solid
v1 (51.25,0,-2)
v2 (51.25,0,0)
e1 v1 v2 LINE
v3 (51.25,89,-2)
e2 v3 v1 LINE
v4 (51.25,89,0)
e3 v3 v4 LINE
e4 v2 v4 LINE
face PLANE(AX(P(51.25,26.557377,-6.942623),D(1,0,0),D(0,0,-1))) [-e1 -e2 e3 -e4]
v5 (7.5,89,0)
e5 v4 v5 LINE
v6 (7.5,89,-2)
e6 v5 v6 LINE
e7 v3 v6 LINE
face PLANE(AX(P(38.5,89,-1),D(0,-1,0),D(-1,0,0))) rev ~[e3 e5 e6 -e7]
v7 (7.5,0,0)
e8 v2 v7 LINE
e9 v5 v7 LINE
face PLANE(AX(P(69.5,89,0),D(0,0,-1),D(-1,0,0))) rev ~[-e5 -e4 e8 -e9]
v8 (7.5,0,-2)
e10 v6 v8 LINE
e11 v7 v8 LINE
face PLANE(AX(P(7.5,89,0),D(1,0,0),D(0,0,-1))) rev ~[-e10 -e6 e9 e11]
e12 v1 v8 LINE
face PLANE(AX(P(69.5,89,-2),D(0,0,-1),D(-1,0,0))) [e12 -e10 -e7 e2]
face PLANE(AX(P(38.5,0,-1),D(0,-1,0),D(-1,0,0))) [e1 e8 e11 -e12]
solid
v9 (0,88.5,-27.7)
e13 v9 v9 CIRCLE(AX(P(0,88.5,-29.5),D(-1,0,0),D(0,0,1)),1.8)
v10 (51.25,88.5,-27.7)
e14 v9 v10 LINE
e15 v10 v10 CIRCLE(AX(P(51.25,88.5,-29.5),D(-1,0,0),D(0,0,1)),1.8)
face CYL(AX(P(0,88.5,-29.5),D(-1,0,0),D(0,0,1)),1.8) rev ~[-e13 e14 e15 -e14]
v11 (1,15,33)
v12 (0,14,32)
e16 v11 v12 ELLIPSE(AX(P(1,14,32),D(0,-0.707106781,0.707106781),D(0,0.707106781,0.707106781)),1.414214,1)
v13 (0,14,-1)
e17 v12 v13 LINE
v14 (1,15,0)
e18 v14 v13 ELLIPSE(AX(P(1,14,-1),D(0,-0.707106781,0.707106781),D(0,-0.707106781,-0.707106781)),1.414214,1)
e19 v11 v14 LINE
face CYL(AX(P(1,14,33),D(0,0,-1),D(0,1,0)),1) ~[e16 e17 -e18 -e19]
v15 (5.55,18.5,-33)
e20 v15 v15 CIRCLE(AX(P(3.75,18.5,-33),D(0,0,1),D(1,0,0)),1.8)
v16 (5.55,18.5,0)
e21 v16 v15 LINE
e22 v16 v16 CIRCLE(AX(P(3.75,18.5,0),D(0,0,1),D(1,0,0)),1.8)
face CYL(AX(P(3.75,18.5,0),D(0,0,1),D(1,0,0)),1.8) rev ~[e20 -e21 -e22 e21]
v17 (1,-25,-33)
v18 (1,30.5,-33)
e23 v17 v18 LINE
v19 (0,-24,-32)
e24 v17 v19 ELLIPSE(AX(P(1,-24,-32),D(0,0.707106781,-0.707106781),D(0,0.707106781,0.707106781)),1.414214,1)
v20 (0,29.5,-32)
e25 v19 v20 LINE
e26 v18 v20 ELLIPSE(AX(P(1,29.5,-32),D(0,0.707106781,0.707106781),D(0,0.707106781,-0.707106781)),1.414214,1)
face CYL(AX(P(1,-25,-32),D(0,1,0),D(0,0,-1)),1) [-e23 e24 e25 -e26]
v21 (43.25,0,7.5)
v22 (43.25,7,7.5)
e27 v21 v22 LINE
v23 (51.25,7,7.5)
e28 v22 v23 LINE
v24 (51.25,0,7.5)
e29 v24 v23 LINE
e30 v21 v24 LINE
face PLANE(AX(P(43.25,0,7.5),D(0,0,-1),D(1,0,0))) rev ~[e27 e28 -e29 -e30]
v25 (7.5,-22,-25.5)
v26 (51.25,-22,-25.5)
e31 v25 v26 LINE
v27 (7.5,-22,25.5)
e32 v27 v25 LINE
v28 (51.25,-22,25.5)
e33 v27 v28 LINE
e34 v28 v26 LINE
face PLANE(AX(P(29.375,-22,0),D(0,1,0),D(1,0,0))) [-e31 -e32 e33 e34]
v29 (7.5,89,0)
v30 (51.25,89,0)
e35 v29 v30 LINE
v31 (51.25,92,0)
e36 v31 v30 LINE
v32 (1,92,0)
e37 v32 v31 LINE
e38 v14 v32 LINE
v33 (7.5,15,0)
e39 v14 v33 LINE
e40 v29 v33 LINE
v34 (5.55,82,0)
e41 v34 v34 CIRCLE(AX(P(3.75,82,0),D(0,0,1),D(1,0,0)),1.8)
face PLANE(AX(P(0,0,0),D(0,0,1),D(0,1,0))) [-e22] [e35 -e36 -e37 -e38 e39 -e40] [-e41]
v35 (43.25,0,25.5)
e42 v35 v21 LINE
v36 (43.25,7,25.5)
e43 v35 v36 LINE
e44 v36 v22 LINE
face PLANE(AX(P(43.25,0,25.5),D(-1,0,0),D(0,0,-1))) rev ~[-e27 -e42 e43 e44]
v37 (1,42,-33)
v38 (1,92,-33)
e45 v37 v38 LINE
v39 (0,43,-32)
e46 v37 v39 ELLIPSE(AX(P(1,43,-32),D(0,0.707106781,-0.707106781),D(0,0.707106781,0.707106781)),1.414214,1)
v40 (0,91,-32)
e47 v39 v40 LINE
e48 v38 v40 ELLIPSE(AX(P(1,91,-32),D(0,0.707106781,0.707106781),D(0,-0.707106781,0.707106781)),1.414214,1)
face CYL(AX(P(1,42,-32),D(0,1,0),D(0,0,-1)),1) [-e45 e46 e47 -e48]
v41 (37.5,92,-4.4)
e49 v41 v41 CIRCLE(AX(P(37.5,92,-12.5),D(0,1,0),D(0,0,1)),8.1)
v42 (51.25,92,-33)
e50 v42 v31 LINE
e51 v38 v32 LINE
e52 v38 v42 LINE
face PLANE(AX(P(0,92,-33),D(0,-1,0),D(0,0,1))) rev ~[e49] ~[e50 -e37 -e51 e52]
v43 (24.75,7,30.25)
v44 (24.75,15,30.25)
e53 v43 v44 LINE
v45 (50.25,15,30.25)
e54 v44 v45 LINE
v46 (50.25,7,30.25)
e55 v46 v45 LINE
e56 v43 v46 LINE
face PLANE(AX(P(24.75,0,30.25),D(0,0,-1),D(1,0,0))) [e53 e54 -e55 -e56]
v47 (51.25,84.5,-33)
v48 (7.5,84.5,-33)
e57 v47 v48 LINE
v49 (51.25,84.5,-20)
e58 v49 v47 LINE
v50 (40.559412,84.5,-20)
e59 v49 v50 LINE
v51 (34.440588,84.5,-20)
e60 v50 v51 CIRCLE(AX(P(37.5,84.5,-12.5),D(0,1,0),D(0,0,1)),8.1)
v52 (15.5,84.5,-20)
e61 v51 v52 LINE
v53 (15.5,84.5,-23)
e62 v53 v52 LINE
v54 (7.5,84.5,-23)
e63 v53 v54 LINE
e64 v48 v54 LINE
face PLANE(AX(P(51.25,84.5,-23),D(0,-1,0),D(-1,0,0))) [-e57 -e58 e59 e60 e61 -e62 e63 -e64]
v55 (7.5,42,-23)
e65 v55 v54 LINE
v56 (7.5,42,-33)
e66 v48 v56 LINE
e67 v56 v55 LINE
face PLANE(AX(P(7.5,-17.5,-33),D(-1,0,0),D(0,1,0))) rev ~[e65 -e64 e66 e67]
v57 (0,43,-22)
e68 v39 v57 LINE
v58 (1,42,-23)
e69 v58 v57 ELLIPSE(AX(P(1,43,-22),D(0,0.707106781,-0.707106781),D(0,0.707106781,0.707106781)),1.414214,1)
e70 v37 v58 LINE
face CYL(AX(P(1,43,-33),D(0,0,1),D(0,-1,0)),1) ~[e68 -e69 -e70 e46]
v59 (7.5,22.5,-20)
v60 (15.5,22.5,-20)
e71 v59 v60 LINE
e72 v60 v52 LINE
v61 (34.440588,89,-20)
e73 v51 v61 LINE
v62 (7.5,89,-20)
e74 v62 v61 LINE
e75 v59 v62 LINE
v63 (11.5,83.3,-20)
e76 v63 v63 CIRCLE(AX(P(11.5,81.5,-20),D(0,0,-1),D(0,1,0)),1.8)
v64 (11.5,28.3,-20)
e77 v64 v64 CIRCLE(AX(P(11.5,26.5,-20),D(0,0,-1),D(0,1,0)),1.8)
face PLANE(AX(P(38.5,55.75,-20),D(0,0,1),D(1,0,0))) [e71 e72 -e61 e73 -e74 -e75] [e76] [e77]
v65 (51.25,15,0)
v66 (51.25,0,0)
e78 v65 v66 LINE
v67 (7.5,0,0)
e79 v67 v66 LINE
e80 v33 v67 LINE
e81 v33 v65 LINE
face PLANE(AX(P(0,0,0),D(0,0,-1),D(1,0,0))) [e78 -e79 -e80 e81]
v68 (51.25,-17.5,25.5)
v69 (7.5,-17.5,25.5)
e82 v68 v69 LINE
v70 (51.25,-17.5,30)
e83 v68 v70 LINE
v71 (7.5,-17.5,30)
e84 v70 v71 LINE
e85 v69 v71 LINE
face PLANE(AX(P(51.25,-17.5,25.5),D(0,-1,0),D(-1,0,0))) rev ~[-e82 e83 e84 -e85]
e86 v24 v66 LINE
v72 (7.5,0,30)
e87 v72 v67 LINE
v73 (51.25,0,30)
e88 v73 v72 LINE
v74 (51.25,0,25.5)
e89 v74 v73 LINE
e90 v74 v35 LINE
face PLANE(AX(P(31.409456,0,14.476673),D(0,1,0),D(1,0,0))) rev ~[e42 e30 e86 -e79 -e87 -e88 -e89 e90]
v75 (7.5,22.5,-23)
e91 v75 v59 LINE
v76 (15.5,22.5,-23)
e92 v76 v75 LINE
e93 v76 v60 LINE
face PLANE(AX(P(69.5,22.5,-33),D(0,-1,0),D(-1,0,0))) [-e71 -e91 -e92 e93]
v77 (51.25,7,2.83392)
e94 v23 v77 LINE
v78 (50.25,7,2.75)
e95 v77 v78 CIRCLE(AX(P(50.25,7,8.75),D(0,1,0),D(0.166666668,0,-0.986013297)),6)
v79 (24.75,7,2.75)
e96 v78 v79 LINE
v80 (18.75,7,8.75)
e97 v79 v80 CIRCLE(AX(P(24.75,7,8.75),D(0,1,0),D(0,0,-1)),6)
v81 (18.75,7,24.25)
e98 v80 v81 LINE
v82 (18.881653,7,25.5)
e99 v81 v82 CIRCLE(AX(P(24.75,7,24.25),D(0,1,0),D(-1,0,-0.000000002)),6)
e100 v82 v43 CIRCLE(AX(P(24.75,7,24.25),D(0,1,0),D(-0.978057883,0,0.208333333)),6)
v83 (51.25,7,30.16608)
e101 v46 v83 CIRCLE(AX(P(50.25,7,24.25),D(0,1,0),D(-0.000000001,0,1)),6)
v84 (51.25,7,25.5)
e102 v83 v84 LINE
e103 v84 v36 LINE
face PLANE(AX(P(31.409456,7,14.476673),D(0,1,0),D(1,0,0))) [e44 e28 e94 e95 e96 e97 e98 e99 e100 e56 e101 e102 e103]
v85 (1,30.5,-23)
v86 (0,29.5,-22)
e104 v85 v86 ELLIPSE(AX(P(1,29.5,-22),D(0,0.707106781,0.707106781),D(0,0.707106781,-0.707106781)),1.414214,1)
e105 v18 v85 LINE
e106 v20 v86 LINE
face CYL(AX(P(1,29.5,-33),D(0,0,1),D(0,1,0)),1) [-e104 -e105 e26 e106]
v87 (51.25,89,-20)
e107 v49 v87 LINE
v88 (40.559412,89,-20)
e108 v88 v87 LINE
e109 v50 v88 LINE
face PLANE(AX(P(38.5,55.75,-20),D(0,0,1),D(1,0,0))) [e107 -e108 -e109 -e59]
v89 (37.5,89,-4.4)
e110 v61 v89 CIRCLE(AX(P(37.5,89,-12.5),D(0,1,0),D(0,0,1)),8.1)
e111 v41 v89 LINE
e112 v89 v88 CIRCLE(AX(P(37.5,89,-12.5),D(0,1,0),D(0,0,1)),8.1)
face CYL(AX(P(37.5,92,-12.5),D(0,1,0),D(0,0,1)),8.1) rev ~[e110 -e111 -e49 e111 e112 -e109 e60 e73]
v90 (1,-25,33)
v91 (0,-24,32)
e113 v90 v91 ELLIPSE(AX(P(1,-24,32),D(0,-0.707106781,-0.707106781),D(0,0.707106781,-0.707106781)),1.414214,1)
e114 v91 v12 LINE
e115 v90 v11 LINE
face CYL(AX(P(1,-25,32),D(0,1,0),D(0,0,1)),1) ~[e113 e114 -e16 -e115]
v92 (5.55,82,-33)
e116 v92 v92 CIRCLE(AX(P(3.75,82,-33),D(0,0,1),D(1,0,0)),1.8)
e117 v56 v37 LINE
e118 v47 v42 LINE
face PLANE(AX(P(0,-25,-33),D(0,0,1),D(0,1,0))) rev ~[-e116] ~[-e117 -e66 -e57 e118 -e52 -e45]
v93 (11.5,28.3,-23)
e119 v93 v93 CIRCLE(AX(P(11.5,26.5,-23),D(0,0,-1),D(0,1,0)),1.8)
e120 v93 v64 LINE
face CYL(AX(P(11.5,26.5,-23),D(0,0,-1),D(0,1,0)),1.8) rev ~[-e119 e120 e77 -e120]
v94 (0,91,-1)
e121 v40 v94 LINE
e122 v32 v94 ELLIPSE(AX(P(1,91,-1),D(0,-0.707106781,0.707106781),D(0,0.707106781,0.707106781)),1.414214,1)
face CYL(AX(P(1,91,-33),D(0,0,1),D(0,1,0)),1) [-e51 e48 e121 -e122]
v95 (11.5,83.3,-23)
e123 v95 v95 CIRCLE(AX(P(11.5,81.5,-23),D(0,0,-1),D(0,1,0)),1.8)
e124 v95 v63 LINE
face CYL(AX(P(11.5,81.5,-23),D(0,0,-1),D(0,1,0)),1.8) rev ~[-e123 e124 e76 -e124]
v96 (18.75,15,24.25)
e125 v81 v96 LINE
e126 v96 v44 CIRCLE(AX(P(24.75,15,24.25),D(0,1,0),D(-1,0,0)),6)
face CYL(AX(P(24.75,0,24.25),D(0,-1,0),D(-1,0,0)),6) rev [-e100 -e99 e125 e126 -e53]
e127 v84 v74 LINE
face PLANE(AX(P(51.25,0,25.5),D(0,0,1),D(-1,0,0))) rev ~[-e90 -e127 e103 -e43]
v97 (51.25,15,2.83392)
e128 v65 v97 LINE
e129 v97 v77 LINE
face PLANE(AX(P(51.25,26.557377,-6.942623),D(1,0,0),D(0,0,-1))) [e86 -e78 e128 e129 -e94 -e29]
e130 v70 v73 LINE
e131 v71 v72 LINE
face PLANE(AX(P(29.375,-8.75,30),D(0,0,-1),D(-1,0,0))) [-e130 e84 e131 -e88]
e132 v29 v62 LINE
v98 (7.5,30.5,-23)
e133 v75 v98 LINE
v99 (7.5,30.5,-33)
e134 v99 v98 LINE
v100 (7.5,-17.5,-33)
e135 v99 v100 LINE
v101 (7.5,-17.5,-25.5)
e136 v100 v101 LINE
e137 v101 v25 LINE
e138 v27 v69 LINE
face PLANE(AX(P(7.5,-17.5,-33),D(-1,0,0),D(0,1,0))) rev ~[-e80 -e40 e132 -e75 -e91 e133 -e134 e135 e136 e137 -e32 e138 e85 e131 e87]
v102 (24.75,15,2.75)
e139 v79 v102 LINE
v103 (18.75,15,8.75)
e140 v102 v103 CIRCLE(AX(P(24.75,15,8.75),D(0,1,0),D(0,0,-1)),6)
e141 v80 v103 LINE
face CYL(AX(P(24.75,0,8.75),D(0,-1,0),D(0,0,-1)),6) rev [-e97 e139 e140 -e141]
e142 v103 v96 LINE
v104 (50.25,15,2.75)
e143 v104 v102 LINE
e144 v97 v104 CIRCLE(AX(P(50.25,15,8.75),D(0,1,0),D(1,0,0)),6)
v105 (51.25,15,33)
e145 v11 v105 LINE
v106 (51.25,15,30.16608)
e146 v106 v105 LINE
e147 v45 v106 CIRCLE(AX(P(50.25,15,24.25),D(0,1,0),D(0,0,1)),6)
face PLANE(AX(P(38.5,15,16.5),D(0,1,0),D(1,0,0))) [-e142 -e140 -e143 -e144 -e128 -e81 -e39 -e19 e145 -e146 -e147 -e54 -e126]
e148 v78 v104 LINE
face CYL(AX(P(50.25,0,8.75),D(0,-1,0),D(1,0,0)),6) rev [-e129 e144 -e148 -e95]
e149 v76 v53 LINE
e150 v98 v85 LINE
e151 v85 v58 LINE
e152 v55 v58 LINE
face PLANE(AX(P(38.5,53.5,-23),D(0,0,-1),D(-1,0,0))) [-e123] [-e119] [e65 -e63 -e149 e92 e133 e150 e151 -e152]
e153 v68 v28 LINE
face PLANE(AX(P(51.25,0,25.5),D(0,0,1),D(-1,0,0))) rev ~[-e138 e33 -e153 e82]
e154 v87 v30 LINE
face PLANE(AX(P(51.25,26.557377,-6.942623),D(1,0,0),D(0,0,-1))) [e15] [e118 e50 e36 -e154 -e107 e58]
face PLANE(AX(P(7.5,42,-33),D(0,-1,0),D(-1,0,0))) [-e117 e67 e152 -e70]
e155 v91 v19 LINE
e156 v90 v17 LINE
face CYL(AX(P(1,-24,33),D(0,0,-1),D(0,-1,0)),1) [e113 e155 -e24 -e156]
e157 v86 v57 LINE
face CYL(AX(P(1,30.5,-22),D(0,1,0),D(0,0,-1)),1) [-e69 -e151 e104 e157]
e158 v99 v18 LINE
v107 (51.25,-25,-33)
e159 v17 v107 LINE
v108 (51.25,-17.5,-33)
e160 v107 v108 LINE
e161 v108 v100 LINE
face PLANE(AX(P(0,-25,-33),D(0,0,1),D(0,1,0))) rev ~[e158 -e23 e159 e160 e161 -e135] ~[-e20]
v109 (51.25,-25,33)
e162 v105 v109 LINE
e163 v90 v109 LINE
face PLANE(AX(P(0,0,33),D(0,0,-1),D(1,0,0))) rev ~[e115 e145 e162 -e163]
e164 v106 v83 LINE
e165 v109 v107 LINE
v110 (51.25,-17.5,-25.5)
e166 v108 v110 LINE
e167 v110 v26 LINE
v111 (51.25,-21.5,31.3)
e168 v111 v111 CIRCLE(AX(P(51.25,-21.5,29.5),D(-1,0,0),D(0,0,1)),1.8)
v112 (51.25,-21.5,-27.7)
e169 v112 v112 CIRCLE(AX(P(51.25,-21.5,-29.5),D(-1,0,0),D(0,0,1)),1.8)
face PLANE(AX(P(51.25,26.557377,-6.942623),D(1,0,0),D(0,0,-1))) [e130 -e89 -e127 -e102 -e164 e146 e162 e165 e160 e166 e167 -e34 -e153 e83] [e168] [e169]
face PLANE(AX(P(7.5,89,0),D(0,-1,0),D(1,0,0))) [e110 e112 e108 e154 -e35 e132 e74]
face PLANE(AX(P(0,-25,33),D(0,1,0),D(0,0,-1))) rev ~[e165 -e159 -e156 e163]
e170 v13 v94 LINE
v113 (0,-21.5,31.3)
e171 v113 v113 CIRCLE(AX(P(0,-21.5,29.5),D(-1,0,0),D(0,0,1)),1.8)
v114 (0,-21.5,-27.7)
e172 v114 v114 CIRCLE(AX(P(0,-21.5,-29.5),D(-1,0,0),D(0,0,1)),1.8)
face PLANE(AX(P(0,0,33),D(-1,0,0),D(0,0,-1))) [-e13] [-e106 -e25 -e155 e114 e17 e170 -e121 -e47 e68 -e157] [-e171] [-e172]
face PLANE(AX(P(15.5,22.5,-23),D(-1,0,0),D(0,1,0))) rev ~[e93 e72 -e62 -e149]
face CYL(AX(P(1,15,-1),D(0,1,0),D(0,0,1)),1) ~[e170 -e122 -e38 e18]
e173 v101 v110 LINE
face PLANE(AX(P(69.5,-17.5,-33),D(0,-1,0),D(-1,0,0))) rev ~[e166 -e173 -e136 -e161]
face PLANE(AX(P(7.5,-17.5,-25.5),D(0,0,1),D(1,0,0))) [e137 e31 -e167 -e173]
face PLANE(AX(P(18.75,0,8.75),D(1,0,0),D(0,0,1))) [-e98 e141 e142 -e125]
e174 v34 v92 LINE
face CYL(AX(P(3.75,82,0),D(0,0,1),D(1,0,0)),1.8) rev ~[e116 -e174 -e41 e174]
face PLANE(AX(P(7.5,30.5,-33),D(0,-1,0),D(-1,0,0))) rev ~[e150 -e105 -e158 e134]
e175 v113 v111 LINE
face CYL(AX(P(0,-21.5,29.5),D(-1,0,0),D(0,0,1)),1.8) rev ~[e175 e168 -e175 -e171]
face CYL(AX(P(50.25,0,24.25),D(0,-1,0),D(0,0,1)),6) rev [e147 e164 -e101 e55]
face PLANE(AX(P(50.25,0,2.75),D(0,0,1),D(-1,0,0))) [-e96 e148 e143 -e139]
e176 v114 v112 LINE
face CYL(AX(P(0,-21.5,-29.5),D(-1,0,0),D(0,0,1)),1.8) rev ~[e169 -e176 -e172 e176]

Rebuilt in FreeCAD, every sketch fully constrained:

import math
import FreeCAD as App
import Part
import Sketcher
from FreeCAD import Vector


def edges_at(feature, points):
    """Names of the edges that pass closest to the given points."""
    edges = feature.Shape.Edges
    near = lambda p: min(range(len(edges)), key=lambda i: edges[i].distToShape(Part.Vertex(*p))[0])
    return sorted({f"Edge{near(p) + 1}" for p in points})


def add_polygon(sketch, points):
    """Adds a closed chain of lines whose ends are joined by coincident constraints."""
    first, n = sketch.GeometryCount, len(points)
    for a, b in zip(points, points[1:] + points[:1]):
        sketch.addGeometry(Part.LineSegment(App.Vector(*a, 0), App.Vector(*b, 0)), False)
    for i in range(n):
        sketch.addConstraint(Sketcher.Constraint("Coincident", first + i, 2, first + (i + 1) % n, 1))

doc = App.newDocument("Part")
params = doc.addObject("Spreadsheet::Sheet", "Params")
for row, (alias, value) in enumerate([
    ("sketch1_width", "25 mm"),
    ("sketch1_width2", "117 mm"),
    ("sketch1_height", "66 mm"),
    ("pad1_length", "77 mm"),
    ("sketch2_width", "62 mm"),
    ("pocket1_length", "10 mm"),
    ("sketch3_diameter", "16.2 mm"),
    ("pocket2_length", "10 mm"),
    ("sketch4_width", "62 mm"),
    ("sketch4_height", "40 mm"),
    ("pocket3_length", "58.5 mm"),
    ("sketch5_radius", "6 mm"),
    ("sketch5_width", "77 mm"),
    ("sketch5_height", "33 mm"),
    ("sketch5_width2", "25.5 mm"),
    ("sketch5_height2", "15.5 mm"),
    ("pad2_length", "15 mm"),
    ("sketch6_radius", "6 mm"),
    ("sketch6_width", "8 mm"),
    ("sketch6_height", "18 mm"),
    ("sketch6_width2", "25.5 mm"),
    ("sketch6_height2", "15.5 mm"),
    ("pad3_length", "7 mm"),
    ("sketch7_width", "62 mm"),
    ("sketch7_height", "66.5 mm"),
    ("pocket4_length", "20 mm"),
    ("sketch8_diameter", "3.6 mm"),
    ("sketch9_diameter", "3.6 mm"),
    ("sketch10_diameter", "3.6 mm"),
    ("pocket7_length", "3 mm"),
    ("sketch11_width", "7.5 mm"),
    ("sketch11_height", "11.5 mm"),
    ("pocket8_length", "10 mm"),
    ("sketch12_width", "62 mm"),
    ("sketch12_height", "2 mm"),
    ("pad4_length", "89 mm"),
    ("sketch13_width", "40 mm"),
    ("sketch13_width2", "117 mm"),
    ("sketch13_height", "33 mm"),
    ("pad5_length", "25.75 mm"),
    ("sketch14_height", "51 mm"),
    ("sketch14_width", "43.75 mm"),
    ("pocket9_length", "4.5 mm"),
    ("sketch15_height", "17.5 mm"),
    ("sketch15_width", "43.75 mm"),
    ("pocket10_length", "4.5 mm"),
    ("sketch16_height", "62 mm"),
    ("sketch16_width", "35.75 mm"),
    ("pocket11_length", "3 mm"),
    ("fillet_radius", "1 mm"),
], start=1):
    params.set(f"A{row}", alias)
    params.set(f"B{row}", "=" + value)
    params.setAlias(f"B{row}", alias)

body = doc.addObject("PartDesign::Body", "Body")

# Sketch on YZ plane
sketch1 = body.newObject("Sketcher::SketchObject", "Sketch")
sketch1.AttachmentSupport = (doc.getObject("YZ_Plane"), [""])
sketch1.MapMode = "FlatFace"
add_polygon(sketch1, [(0, 33), (-25, 33), (-25, -33), (92, -33), (92, 0), (0, 0)])  # lines 0-5
sketch1.addConstraint([
    Sketcher.Constraint("Horizontal", 0),
    Sketcher.Constraint("Vertical", 1),
    Sketcher.Constraint("Horizontal", 2),
    Sketcher.Constraint("Vertical", 3),
    Sketcher.Constraint("Horizontal", 4),
    Sketcher.Constraint("Vertical", 5),
    Sketcher.Constraint("Coincident", 4, 2, -1, 1),
    Sketcher.Constraint("Equal", 3, 5),
    Sketcher.Constraint("DistanceX", 0, 2, 0, 1, 25.0),
    Sketcher.Constraint("DistanceX", 2, 1, 2, 2, 117.0),
    Sketcher.Constraint("DistanceY", 1, 2, 1, 1, 66.0),
])
sketch1.setExpression("Constraints[14]", "Params.sketch1_width")
sketch1.setExpression("Constraints[15]", "Params.sketch1_width2")
sketch1.setExpression("Constraints[16]", "Params.sketch1_height")
pad1 = body.newObject("PartDesign::Pad", "Pad")
pad1.Profile = sketch1
pad1.setExpression("Length", "Params.pad1_length")

# Sketch on XY plane
sketch2 = body.newObject("Sketcher::SketchObject", "Sketch001")
sketch2.AttachmentSupport = (doc.getObject("XY_Plane"), [""])
sketch2.MapMode = "FlatFace"
sketch2.AttachmentOffset = App.Placement(Vector(0, 0, -33), App.Rotation())
add_polygon(sketch2, [(69.5, 84.5), (69.5, 22.5), (7.5, 22.5), (7.5, 84.5)])  # lines 0-3
sketch2.addConstraint([
    Sketcher.Constraint("Vertical", 0),
    Sketcher.Constraint("Horizontal", 1),
    Sketcher.Constraint("Vertical", 2),
    Sketcher.Constraint("Horizontal", 3),
    Sketcher.Constraint("Equal", 3, 0),
    Sketcher.Constraint("DistanceX", 1, 2, 1, 1, 62.0),
    Sketcher.Constraint("DistanceX", -1, 1, 0, 2, 69.5),
    Sketcher.Constraint("DistanceY", -1, 1, 0, 2, 22.5),
])
sketch2.setExpression("Constraints[9]", "Params.sketch2_width")
pocket1 = body.newObject("PartDesign::Pocket", "Pocket")
pocket1.Profile = sketch2
pocket1.setExpression("Length", "Params.pocket1_length")
pocket1.Reversed = True

# Sketch on XZ plane
sketch3 = body.newObject("Sketcher::SketchObject", "Sketch002")
sketch3.AttachmentSupport = (doc.getObject("XZ_Plane"), [""])
sketch3.MapMode = "FlatFace"
sketch3.AttachmentOffset = App.Placement(Vector(0, 0, -92), App.Rotation())
sketch3.addGeometry(Part.Circle(Vector(37.5, -12.5, 0), Vector(0, 0, 1), 8.1), False)
sketch3.addConstraint([
    Sketcher.Constraint("Diameter", 0, 16.2),
    Sketcher.Constraint("DistanceX", -1, 1, 0, 3, 37.5),
    Sketcher.Constraint("DistanceY", 0, 3, -1, 1, 12.5),
])
sketch3.setExpression("Constraints[0]", "Params.sketch3_diameter")
pocket2 = body.newObject("PartDesign::Pocket", "Pocket001")
pocket2.Profile = sketch3
pocket2.setExpression("Length", "Params.pocket2_length")
pocket2.Reversed = True

# Sketch on XY plane
sketch4 = body.newObject("Sketcher::SketchObject", "Sketch003")
sketch4.AttachmentSupport = (doc.getObject("XY_Plane"), [""])
sketch4.MapMode = "FlatFace"
sketch4.AttachmentOffset = App.Placement(Vector(0, 0, -33), App.Rotation())
add_polygon(sketch4, [(69.5, 22.5), (69.5, -17.5), (7.5, -17.5), (7.5, 22.5)])  # lines 0-3
sketch4.addConstraint([
    Sketcher.Constraint("Vertical", 0),
    Sketcher.Constraint("Horizontal", 1),
    Sketcher.Constraint("Vertical", 2),
    Sketcher.Constraint("Horizontal", 3),
    Sketcher.Constraint("DistanceX", 1, 2, 1, 1, 62.0),
    Sketcher.Constraint("DistanceY", 0, 2, 0, 1, 40.0),
    Sketcher.Constraint("DistanceX", -1, 1, 0, 2, 69.5),
    Sketcher.Constraint("DistanceY", 0, 2, -1, 1, 17.5),
])
sketch4.setExpression("Constraints[8]", "Params.sketch4_width")
sketch4.setExpression("Constraints[9]", "Params.sketch4_height")
pocket3 = body.newObject("PartDesign::Pocket", "Pocket002")
pocket3.Profile = sketch4
pocket3.setExpression("Length", "Params.pocket3_length")
pocket3.Reversed = True

# Sketch on XZ plane
sketch5 = body.newObject("Sketcher::SketchObject", "Sketch004")
sketch5.AttachmentSupport = (doc.getObject("XZ_Plane"), [""])
sketch5.MapMode = "FlatFace"
add_polygon(sketch5, [(0, 0), (0, 33), (77, 33), (77, 0)])  # lines 0-3
sketch5.addGeometry(Part.LineSegment(Vector(24.75, 2.75, 0), Vector(50.25, 2.75, 0)), False)  # 4
sketch5.addGeometry(Part.ArcOfCircle(Part.Circle(Vector(50.25, 8.75, 0), Vector(0, 0, 1), 6), math.radians(-90), math.radians(0)), False)  # 5
sketch5.addGeometry(Part.LineSegment(Vector(56.25, 8.75, 0), Vector(56.25, 24.25, 0)), False)  # 6
sketch5.addGeometry(Part.ArcOfCircle(Part.Circle(Vector(50.25, 24.25, 0), Vector(0, 0, 1), 6), math.radians(0), math.radians(90)), False)  # 7
sketch5.addGeometry(Part.LineSegment(Vector(50.25, 30.25, 0), Vector(24.75, 30.25, 0)), False)  # 8
sketch5.addGeometry(Part.ArcOfCircle(Part.Circle(Vector(24.75, 24.25, 0), Vector(0, 0, 1), 6), math.radians(90), math.radians(180)), False)  # 9
sketch5.addGeometry(Part.LineSegment(Vector(18.75, 24.25, 0), Vector(18.75, 8.75, 0)), False)  # 10
sketch5.addGeometry(Part.ArcOfCircle(Part.Circle(Vector(24.75, 8.75, 0), Vector(0, 0, 1), 6), math.radians(180), math.radians(270)), False)  # 11
sketch5.addConstraint([
    Sketcher.Constraint("Tangent", 4, 2, 5, 1),
    Sketcher.Constraint("Tangent", 5, 2, 6, 1),
    Sketcher.Constraint("Tangent", 6, 2, 7, 1),
    Sketcher.Constraint("Tangent", 7, 2, 8, 1),
    Sketcher.Constraint("Tangent", 8, 2, 9, 1),
    Sketcher.Constraint("Tangent", 9, 2, 10, 1),
    Sketcher.Constraint("Tangent", 10, 2, 11, 1),
    Sketcher.Constraint("Tangent", 11, 2, 4, 1),
    Sketcher.Constraint("Vertical", 0),
    Sketcher.Constraint("Horizontal", 1),
    Sketcher.Constraint("Vertical", 2),
    Sketcher.Constraint("Horizontal", 3),
    Sketcher.Constraint("Horizontal", 4),
    Sketcher.Constraint("Vertical", 6),
    Sketcher.Constraint("Horizontal", 8),
    Sketcher.Constraint("Vertical", 10),
    Sketcher.Constraint("Coincident", 3, 2, -1, 1),
    Sketcher.Constraint("Equal", 5, 7),
    Sketcher.Constraint("Equal", 7, 9),
    Sketcher.Constraint("Equal", 9, 11),
    Sketcher.Constraint("Radius", 5, 6.0),
    Sketcher.Constraint("DistanceX", 1, 1, 1, 2, 77.0),
    Sketcher.Constraint("DistanceY", 0, 1, 0, 2, 33.0),
    Sketcher.Constraint("DistanceX", 4, 1, 4, 2, 25.5),
    Sketcher.Constraint("DistanceY", 6, 1, 6, 2, 15.5),
    Sketcher.Constraint("DistanceX", -1, 1, 5, 3, 50.25),
    Sketcher.Constraint("DistanceY", -1, 1, 5, 3, 8.75),
])
sketch5.setExpression("Constraints[24]", "Params.sketch5_radius")
sketch5.setExpression("Constraints[25]", "Params.sketch5_width")
sketch5.setExpression("Constraints[26]", "Params.sketch5_height")
sketch5.setExpression("Constraints[27]", "Params.sketch5_width2")
sketch5.setExpression("Constraints[28]", "Params.sketch5_height2")
pad2 = body.newObject("PartDesign::Pad", "Pad001")
pad2.Profile = sketch5
pad2.setExpression("Length", "Params.pad2_length")
pad2.Reversed = True

# Sketch on XZ plane
sketch6 = body.newObject("Sketcher::SketchObject", "Sketch005")
sketch6.AttachmentSupport = (doc.getObject("XZ_Plane"), [""])
sketch6.MapMode = "FlatFace"
sketch6.addGeometry(Part.ArcOfCircle(Part.Circle(Vector(24.75, 8.75, 0), Vector(0, 0, 1), 6), math.radians(180), math.radians(270)), False)  # 0
sketch6.addGeometry(Part.LineSegment(Vector(18.75, 8.75, 0), Vector(18.75, 24.25, 0)), False)  # 1
sketch6.addGeometry(Part.ArcOfCircle(Part.Circle(Vector(24.75, 24.25, 0), Vector(0, 0, 1), 6), math.radians(167.975301), math.radians(180)), False)  # 2
sketch6.addGeometry(Part.ArcOfCircle(Part.Circle(Vector(24.75, 24.25, 0), Vector(0, 0, 1), 6), math.radians(90), math.radians(167.975301)), False)  # 3
sketch6.addGeometry(Part.LineSegment(Vector(24.75, 30.25, 0), Vector(50.25, 30.25, 0)), False)  # 4
sketch6.addGeometry(Part.ArcOfCircle(Part.Circle(Vector(50.25, 24.25, 0), Vector(0, 0, 1), 6), math.radians(80.405932), math.radians(90)), False)  # 5
sketch6.addGeometry(Part.ArcOfCircle(Part.Circle(Vector(50.25, 24.25, 0), Vector(0, 0, 1), 6), math.radians(12.024699), math.radians(80.405932)), False)  # 6
sketch6.addGeometry(Part.ArcOfCircle(Part.Circle(Vector(50.25, 24.25, 0), Vector(0, 0, 1), 6), math.radians(0), math.radians(12.024699)), False)  # 7
sketch6.addGeometry(Part.LineSegment(Vector(56.25, 24.25, 0), Vector(56.25, 8.75, 0)), False)  # 8
sketch6.addGeometry(Part.ArcOfCircle(Part.Circle(Vector(50.25, 8.75, 0), Vector(0, 0, 1), 6), math.radians(-80.405932), math.radians(0)), False)  # 9
sketch6.addGeometry(Part.ArcOfCircle(Part.Circle(Vector(50.25, 8.75, 0), Vector(0, 0, 1), 6), math.radians(-90), math.radians(-80.405932)), False)  # 10
sketch6.addGeometry(Part.LineSegment(Vector(50.25, 2.75, 0), Vector(24.75, 2.75, 0)), False)  # 11
add_polygon(sketch6, [(51.25, 7.5), (51.25, 25.5), (43.25, 25.5), (43.25, 7.5)])  # lines 12-15
sketch6.addConstraint([
    Sketcher.Constraint("Tangent", 0, 1, 1, 1),
    Sketcher.Constraint("Tangent", 1, 2, 2, 2),
    Sketcher.Constraint("Tangent", 2, 1, 3, 2),
    Sketcher.Constraint("Tangent", 3, 1, 4, 1),
    Sketcher.Constraint("Tangent", 4, 2, 5, 2),
    Sketcher.Constraint("Tangent", 5, 1, 6, 2),
    Sketcher.Constraint("Tangent", 6, 1, 7, 2),
    Sketcher.Constraint("Tangent", 7, 1, 8, 1),
    Sketcher.Constraint("Tangent", 8, 2, 9, 2),
    Sketcher.Constraint("Tangent", 9, 1, 10, 2),
    Sketcher.Constraint("Tangent", 10, 1, 11, 1),
    Sketcher.Constraint("Tangent", 11, 2, 0, 2),
    Sketcher.Constraint("Vertical", 1),
    Sketcher.Constraint("Horizontal", 4),
    Sketcher.Constraint("Vertical", 8),
    Sketcher.Constraint("Horizontal", 11),
    Sketcher.Constraint("Vertical", 12),
    Sketcher.Constraint("Horizontal", 13),
    Sketcher.Constraint("Vertical", 14),
    Sketcher.Constraint("Horizontal", 15),
    Sketcher.Constraint("Coincident", 7, 3, 5, 3),
    Sketcher.Constraint("Equal", 0, 2),
    Sketcher.Constraint("Equal", 2, 3),
    Sketcher.Constraint("Equal", 3, 5),
    Sketcher.Constraint("Equal", 7, 9),
    Sketcher.Constraint("Equal", 9, 10),
    Sketcher.Constraint("Horizontal", 2, 1, 6, 1),
    Sketcher.Constraint("Horizontal", 6, 1, 12, 2),
    Sketcher.Constraint("Vertical", 5, 1, 9, 1),
    Sketcher.Constraint("Vertical", 9, 1, 12, 2),
    Sketcher.Constraint("Radius", 0, 6.0),
    Sketcher.Constraint("DistanceX", 13, 2, 13, 1, 8.0),
    Sketcher.Constraint("DistanceY", 12, 1, 12, 2, 18.0),
    Sketcher.Constraint("DistanceX", 4, 1, 4, 2, 25.5),
    Sketcher.Constraint("DistanceY", 1, 1, 1, 2, 15.5),
    Sketcher.Constraint("DistanceX", 4, 2, 5, 1, 1.0),
    Sketcher.Constraint("DistanceY", -1, 1, 2, 1, 25.5),
    Sketcher.Constraint("DistanceX", -1, 1, 0, 3, 24.75),
    Sketcher.Constraint("DistanceY", -1, 1, 0, 3, 8.75),
])
sketch6.setExpression("Constraints[34]", "Params.sketch6_radius")
sketch6.setExpression("Constraints[35]", "Params.sketch6_width")
sketch6.setExpression("Constraints[36]", "Params.sketch6_height")
sketch6.setExpression("Constraints[37]", "Params.sketch6_width2")
sketch6.setExpression("Constraints[38]", "Params.sketch6_height2")
pad3 = body.newObject("PartDesign::Pad", "Pad002")
pad3.Profile = sketch6
pad3.setExpression("Length", "Params.pad3_length")
pad3.Reversed = True

# Sketch on XY plane
sketch7 = body.newObject("Sketcher::SketchObject", "Sketch006")
sketch7.AttachmentSupport = (doc.getObject("XY_Plane"), [""])
sketch7.MapMode = "FlatFace"
add_polygon(sketch7, [(7.5, 89), (7.5, 22.5), (69.5, 22.5), (69.5, 89)])  # lines 0-3
sketch7.addConstraint([
    Sketcher.Constraint("Vertical", 0),
    Sketcher.Constraint("Horizontal", 1),
    Sketcher.Constraint("Vertical", 2),
    Sketcher.Constraint("Horizontal", 3),
    Sketcher.Constraint("DistanceX", 1, 1, 1, 2, 62.0),
    Sketcher.Constraint("DistanceY", 0, 2, 0, 1, 66.5),
    Sketcher.Constraint("DistanceY", -1, 1, 2, 2, 89.0),
    Sketcher.Constraint("DistanceX", -1, 1, 0, 2, 7.5),
])
sketch7.setExpression("Constraints[8]", "Params.sketch7_width")
sketch7.setExpression("Constraints[9]", "Params.sketch7_height")
pocket4 = body.newObject("PartDesign::Pocket", "Pocket003")
pocket4.Profile = sketch7
pocket4.setExpression("Length", "Params.pocket4_length")

# Sketch on YZ plane
sketch8 = body.newObject("Sketcher::SketchObject", "Sketch007")
sketch8.AttachmentSupport = (doc.getObject("YZ_Plane"), [""])
sketch8.MapMode = "FlatFace"
sketch8.addGeometry([
    Part.Circle(Vector(88.5, -29.5, 0), Vector(0, 0, 1), 1.8),
    Part.Circle(Vector(-21.5, -29.5, 0), Vector(0, 0, 1), 1.8),
    Part.Circle(Vector(-21.5, 29.5, 0), Vector(0, 0, 1), 1.8),
], False)
sketch8.addConstraint([
    Sketcher.Constraint("Equal", 0, 1),
    Sketcher.Constraint("Equal", 1, 2),
    Sketcher.Constraint("Symmetric", 1, 3, 2, 3, -1),
    Sketcher.Constraint("Horizontal", 0, 3, 1, 3),
    Sketcher.Constraint("Diameter", 0, 3.6),
    Sketcher.Constraint("DistanceX", 1, 3, 0, 3, 110.0),
    Sketcher.Constraint("DistanceY", 1, 3, 2, 3, 59.0),
    Sketcher.Constraint("DistanceX", -1, 1, 0, 3, 88.5),
])
sketch8.setExpression("Constraints[4]", "Params.sketch8_diameter")
pocket5 = body.newObject("PartDesign::Pocket", "Pocket004")
pocket5.Profile = sketch8
pocket5.Type = "ThroughAll"
pocket5.Reversed = True

# Sketch on XY plane
sketch9 = body.newObject("Sketcher::SketchObject", "Sketch008")
sketch9.AttachmentSupport = (doc.getObject("XY_Plane"), [""])
sketch9.MapMode = "FlatFace"
sketch9.addGeometry([
    Part.Circle(Vector(3.75, 82, 0), Vector(0, 0, 1), 1.8),
    Part.Circle(Vector(73.25, 82, 0), Vector(0, 0, 1), 1.8),
    Part.Circle(Vector(73.25, 18.5, 0), Vector(0, 0, 1), 1.8),
    Part.Circle(Vector(3.75, 18.5, 0), Vector(0, 0, 1), 1.8),
], False)
sketch9.addConstraint([
    Sketcher.Constraint("Equal", 0, 1),
    Sketcher.Constraint("Equal", 1, 2),
    Sketcher.Constraint("Equal", 2, 3),
    Sketcher.Constraint("Horizontal", 0, 3, 1, 3),
    Sketcher.Constraint("Horizontal", 2, 3, 3, 3),
    Sketcher.Constraint("Vertical", 1, 3, 2, 3),
    Sketcher.Constraint("Vertical", 0, 3, 3, 3),
    Sketcher.Constraint("Diameter", 0, 3.6),
    Sketcher.Constraint("DistanceY", -1, 1, 0, 3, 82.0),
    Sketcher.Constraint("DistanceY", -1, 1, 2, 3, 18.5),
    Sketcher.Constraint("DistanceX", 0, 3, 1, 3, 69.5),
    Sketcher.Constraint("DistanceX", -1, 1, 0, 3, 3.75),
])
sketch9.setExpression("Constraints[7]", "Params.sketch9_diameter")
pocket6 = body.newObject("PartDesign::Pocket", "Pocket005")
pocket6.Profile = sketch9
pocket6.Type = "ThroughAll"

# Sketch on XY plane
sketch10 = body.newObject("Sketcher::SketchObject", "Sketch009")
sketch10.AttachmentSupport = (doc.getObject("XY_Plane"), [""])
sketch10.MapMode = "FlatFace"
sketch10.AttachmentOffset = App.Placement(Vector(0, 0, -23), App.Rotation())
sketch10.addGeometry([
    Part.Circle(Vector(66.5, 81.5, 0), Vector(0, 0, 1), 1.8),
    Part.Circle(Vector(11.5, 81.5, 0), Vector(0, 0, 1), 1.8),
    Part.Circle(Vector(11.5, 26.5, 0), Vector(0, 0, 1), 1.8),
    Part.Circle(Vector(66.5, 26.5, 0), Vector(0, 0, 1), 1.8),
], False)
sketch10.addConstraint([
    Sketcher.Constraint("Equal", 0, 1),
    Sketcher.Constraint("Equal", 1, 2),
    Sketcher.Constraint("Equal", 2, 3),
    Sketcher.Constraint("Horizontal", 0, 3, 1, 3),
    Sketcher.Constraint("Horizontal", 2, 3, 3, 3),
    Sketcher.Constraint("Vertical", 1, 3, 2, 3),
    Sketcher.Constraint("Vertical", 0, 3, 3, 3),
    Sketcher.Constraint("Diameter", 0, 3.6),
    Sketcher.Constraint("DistanceX", 1, 3, 0, 3, 55.0),
    Sketcher.Constraint("DistanceY", 2, 3, 1, 3, 55.0),
    Sketcher.Constraint("DistanceX", -1, 1, 0, 3, 66.5),
    Sketcher.Constraint("DistanceY", -1, 1, 0, 3, 81.5),
])
sketch10.setExpression("Constraints[7]", "Params.sketch10_diameter")
pocket7 = body.newObject("PartDesign::Pocket", "Pocket006")
pocket7.Profile = sketch10
pocket7.setExpression("Length", "Params.pocket7_length")
pocket7.Reversed = True

# Sketch on XY plane
sketch11 = body.newObject("Sketcher::SketchObject", "Sketch010")
sketch11.AttachmentSupport = (doc.getObject("XY_Plane"), [""])
sketch11.MapMode = "FlatFace"
sketch11.AttachmentOffset = App.Placement(Vector(0, 0, -33), App.Rotation())
add_polygon(sketch11, [(7.5, 42), (7.5, 30.5), (0, 30.5), (0, 42)])  # lines 0-3
sketch11.addConstraint([
    Sketcher.Constraint("Vertical", 0),
    Sketcher.Constraint("Horizontal", 1),
    Sketcher.Constraint("Vertical", 2),
    Sketcher.Constraint("Horizontal", 3),
    Sketcher.Constraint("PointOnObject", 1, 2, -2),
    Sketcher.Constraint("DistanceX", 1, 2, 1, 1, 7.5),
    Sketcher.Constraint("DistanceY", 0, 2, 0, 1, 11.5),
    Sketcher.Constraint("DistanceY", -1, 1, 2, 2, 42.0),
])
sketch11.setExpression("Constraints[9]", "Params.sketch11_width")
sketch11.setExpression("Constraints[10]", "Params.sketch11_height")
pocket8 = body.newObject("PartDesign::Pocket", "Pocket007")
pocket8.Profile = sketch11
pocket8.setExpression("Length", "Params.pocket8_length")
pocket8.Reversed = True
body2 = doc.addObject("PartDesign::Body", "Body001")

# Sketch on XZ plane
sketch12 = body2.newObject("Sketcher::SketchObject", "Sketch011")
sketch12.AttachmentSupport = (doc.getObject("XZ_Plane001"), [""])
sketch12.MapMode = "FlatFace"
sketch12.AttachmentOffset = App.Placement(Vector(0, 0, -89), App.Rotation())
add_polygon(sketch12, [(69.5, -2), (69.5, 0), (7.5, 0), (7.5, -2)])  # lines 0-3
sketch12.addConstraint([
    Sketcher.Constraint("Vertical", 0),
    Sketcher.Constraint("Horizontal", 1),
    Sketcher.Constraint("Vertical", 2),
    Sketcher.Constraint("Horizontal", 3),
    Sketcher.Constraint("PointOnObject", 0, 2, -1),
    Sketcher.Constraint("DistanceX", 1, 2, 1, 1, 62.0),
    Sketcher.Constraint("DistanceY", 0, 1, 0, 2, 2.0),
    Sketcher.Constraint("DistanceX", -1, 1, 0, 2, 69.5),
])
sketch12.setExpression("Constraints[9]", "Params.sketch12_width")
sketch12.setExpression("Constraints[10]", "Params.sketch12_height")
pad4 = body2.newObject("PartDesign::Pad", "Pad003")
pad4.Profile = sketch12
pad4.setExpression("Length", "Params.pad4_length")
body3 = doc.addObject("PartDesign::Body", "Body002")

# Sketch on YZ plane
sketch13 = body3.newObject("Sketcher::SketchObject", "Sketch012")
sketch13.AttachmentSupport = (doc.getObject("YZ_Plane002"), [""])
sketch13.MapMode = "FlatFace"
sketch13.AttachmentOffset = App.Placement(Vector(0, 0, 77), App.Rotation())
add_polygon(sketch13, [(15, 0), (15, 33), (-25, 33), (-25, -33), (92, -33), (92, 0)])  # lines 0-5
sketch13.addConstraint([
    Sketcher.Constraint("Vertical", 0),
    Sketcher.Constraint("Horizontal", 1),
    Sketcher.Constraint("Vertical", 2),
    Sketcher.Constraint("Horizontal", 3),
    Sketcher.Constraint("Vertical", 4),
    Sketcher.Constraint("Horizontal", 5),
    Sketcher.Constraint("PointOnObject", 4, 2, -1),
    Sketcher.Constraint("Equal", 0, 4),
    Sketcher.Constraint("DistanceX", 1, 2, 1, 1, 40.0),
    Sketcher.Constraint("DistanceX", 3, 1, 3, 2, 117.0),
    Sketcher.Constraint("DistanceY", 0, 1, 0, 2, 33.0),
    Sketcher.Constraint("DistanceX", -1, 1, 0, 2, 15.0),
])
sketch13.setExpression("Constraints[14]", "Params.sketch13_width")
sketch13.setExpression("Constraints[15]", "Params.sketch13_width2")
sketch13.setExpression("Constraints[16]", "Params.sketch13_height")
pad5 = body3.newObject("PartDesign::Pad", "Pad004")
pad5.Profile = sketch13
pad5.setExpression("Length", "Params.pad5_length")
pad5.Reversed = True
doc.recompute()

body4 = doc.addObject("PartDesign::Body", "Body003")
body4.BaseFeature = body3
boolean = body.newObject("PartDesign::Boolean", "Boolean")
boolean.Type = "Cut"
boolean.addObjects([body4])
doc.recompute()

# Sketch on XZ plane
sketch14 = body.newObject("Sketcher::SketchObject", "Sketch013")
sketch14.AttachmentSupport = (doc.getObject("XZ_Plane"), [""])
sketch14.MapMode = "FlatFace"
sketch14.AttachmentOffset = App.Placement(Vector(0, 0, 17.5), App.Rotation())
add_polygon(sketch14, [(7.5, -25.5), (7.5, 25.5), (51.25, 25.5), (51.25, -25.5)])  # lines 0-3
sketch14.addConstraint([
    Sketcher.Constraint("Vertical", 0),
    Sketcher.Constraint("Horizontal", 1),
    Sketcher.Constraint("Vertical", 2),
    Sketcher.Constraint("Horizontal", 3),
    Sketcher.Constraint("DistanceY", 0, 1, 0, 2, 51.0),
    Sketcher.Constraint("DistanceX", 1, 1, 1, 2, 43.75),
    Sketcher.Constraint("DistanceX", -1, 1, 0, 2, 7.5),
    Sketcher.Constraint("DistanceY", -1, 1, 0, 2, 25.5),
])
sketch14.setExpression("Constraints[8]", "Params.sketch14_height")
sketch14.setExpression("Constraints[9]", "Params.sketch14_width")
pocket9 = body.newObject("PartDesign::Pocket", "Pocket008")
pocket9.Profile = sketch14
pocket9.setExpression("Length", "Params.pocket9_length")
pocket9.Reversed = True

# Sketch on XY plane
sketch15 = body.newObject("Sketcher::SketchObject", "Sketch014")
sketch15.AttachmentSupport = (doc.getObject("XY_Plane"), [""])
sketch15.MapMode = "FlatFace"
sketch15.AttachmentOffset = App.Placement(Vector(0, 0, 25.5), App.Rotation())
add_polygon(sketch15, [(51.25, 0), (51.25, -17.5), (7.5, -17.5), (7.5, 0)])  # lines 0-3
sketch15.addConstraint([
    Sketcher.Constraint("Vertical", 0),
    Sketcher.Constraint("Horizontal", 1),
    Sketcher.Constraint("Vertical", 2),
    Sketcher.Constraint("Horizontal", 3),
    Sketcher.Constraint("PointOnObject", 2, 2, -1),
    Sketcher.Constraint("DistanceY", 0, 2, 0, 1, 17.5),
    Sketcher.Constraint("DistanceX", 1, 2, 1, 1, 43.75),
    Sketcher.Constraint("DistanceX", -1, 1, 1, 2, 7.5),
])
sketch15.setExpression("Constraints[9]", "Params.sketch15_height")
sketch15.setExpression("Constraints[10]", "Params.sketch15_width")
pocket10 = body.newObject("PartDesign::Pocket", "Pocket009")
pocket10.Profile = sketch15
pocket10.setExpression("Length", "Params.pocket10_length")
pocket10.Reversed = True

# Sketch on XY plane
sketch16 = body.newObject("Sketcher::SketchObject", "Sketch015")
sketch16.AttachmentSupport = (doc.getObject("XY_Plane"), [""])
sketch16.MapMode = "FlatFace"
sketch16.AttachmentOffset = App.Placement(Vector(0, 0, -23), App.Rotation())
add_polygon(sketch16, [(51.25, 84.5), (51.25, 22.5), (15.5, 22.5), (15.5, 84.5)])  # lines 0-3
sketch16.addConstraint([
    Sketcher.Constraint("Vertical", 0),
    Sketcher.Constraint("Horizontal", 1),
    Sketcher.Constraint("Vertical", 2),
    Sketcher.Constraint("Horizontal", 3),
    Sketcher.Constraint("DistanceY", 0, 2, 0, 1, 62.0),
    Sketcher.Constraint("DistanceX", 1, 2, 1, 1, 35.75),
    Sketcher.Constraint("DistanceY", -1, 1, 0, 2, 22.5),
    Sketcher.Constraint("DistanceX", -1, 1, 1, 2, 15.5),
])
sketch16.setExpression("Constraints[8]", "Params.sketch16_height")
sketch16.setExpression("Constraints[9]", "Params.sketch16_width")
pocket11 = body.newObject("PartDesign::Pocket", "Pocket010")
pocket11.Profile = sketch16
pocket11.setExpression("Length", "Params.pocket11_length")
pocket11.Reversed = True
doc.recompute()

fillet = body.newObject("PartDesign::Fillet", "Fillet")
fillet.Base = (pocket11, edges_at(pocket11, [
    (0, -5, 33),
    (0, 2.75, -33),
    (0, 36.25, -23),
    (0, 42, -28),
    (0, 30.5, -28),
    (0, 15, 16.5),
    (0, 53.5, 0),
    (0, 92, -16.5),
    (0, 67, -33),
    (0, -25, 0),
]))
fillet.setExpression("Radius", "Params.fillet_radius")
doc.recompute()

boolean2 = body2.newObject("PartDesign::Boolean", "Boolean001")
boolean2.Type = "Cut"
boolean2.addObjects([body3])

doc.recompute()
